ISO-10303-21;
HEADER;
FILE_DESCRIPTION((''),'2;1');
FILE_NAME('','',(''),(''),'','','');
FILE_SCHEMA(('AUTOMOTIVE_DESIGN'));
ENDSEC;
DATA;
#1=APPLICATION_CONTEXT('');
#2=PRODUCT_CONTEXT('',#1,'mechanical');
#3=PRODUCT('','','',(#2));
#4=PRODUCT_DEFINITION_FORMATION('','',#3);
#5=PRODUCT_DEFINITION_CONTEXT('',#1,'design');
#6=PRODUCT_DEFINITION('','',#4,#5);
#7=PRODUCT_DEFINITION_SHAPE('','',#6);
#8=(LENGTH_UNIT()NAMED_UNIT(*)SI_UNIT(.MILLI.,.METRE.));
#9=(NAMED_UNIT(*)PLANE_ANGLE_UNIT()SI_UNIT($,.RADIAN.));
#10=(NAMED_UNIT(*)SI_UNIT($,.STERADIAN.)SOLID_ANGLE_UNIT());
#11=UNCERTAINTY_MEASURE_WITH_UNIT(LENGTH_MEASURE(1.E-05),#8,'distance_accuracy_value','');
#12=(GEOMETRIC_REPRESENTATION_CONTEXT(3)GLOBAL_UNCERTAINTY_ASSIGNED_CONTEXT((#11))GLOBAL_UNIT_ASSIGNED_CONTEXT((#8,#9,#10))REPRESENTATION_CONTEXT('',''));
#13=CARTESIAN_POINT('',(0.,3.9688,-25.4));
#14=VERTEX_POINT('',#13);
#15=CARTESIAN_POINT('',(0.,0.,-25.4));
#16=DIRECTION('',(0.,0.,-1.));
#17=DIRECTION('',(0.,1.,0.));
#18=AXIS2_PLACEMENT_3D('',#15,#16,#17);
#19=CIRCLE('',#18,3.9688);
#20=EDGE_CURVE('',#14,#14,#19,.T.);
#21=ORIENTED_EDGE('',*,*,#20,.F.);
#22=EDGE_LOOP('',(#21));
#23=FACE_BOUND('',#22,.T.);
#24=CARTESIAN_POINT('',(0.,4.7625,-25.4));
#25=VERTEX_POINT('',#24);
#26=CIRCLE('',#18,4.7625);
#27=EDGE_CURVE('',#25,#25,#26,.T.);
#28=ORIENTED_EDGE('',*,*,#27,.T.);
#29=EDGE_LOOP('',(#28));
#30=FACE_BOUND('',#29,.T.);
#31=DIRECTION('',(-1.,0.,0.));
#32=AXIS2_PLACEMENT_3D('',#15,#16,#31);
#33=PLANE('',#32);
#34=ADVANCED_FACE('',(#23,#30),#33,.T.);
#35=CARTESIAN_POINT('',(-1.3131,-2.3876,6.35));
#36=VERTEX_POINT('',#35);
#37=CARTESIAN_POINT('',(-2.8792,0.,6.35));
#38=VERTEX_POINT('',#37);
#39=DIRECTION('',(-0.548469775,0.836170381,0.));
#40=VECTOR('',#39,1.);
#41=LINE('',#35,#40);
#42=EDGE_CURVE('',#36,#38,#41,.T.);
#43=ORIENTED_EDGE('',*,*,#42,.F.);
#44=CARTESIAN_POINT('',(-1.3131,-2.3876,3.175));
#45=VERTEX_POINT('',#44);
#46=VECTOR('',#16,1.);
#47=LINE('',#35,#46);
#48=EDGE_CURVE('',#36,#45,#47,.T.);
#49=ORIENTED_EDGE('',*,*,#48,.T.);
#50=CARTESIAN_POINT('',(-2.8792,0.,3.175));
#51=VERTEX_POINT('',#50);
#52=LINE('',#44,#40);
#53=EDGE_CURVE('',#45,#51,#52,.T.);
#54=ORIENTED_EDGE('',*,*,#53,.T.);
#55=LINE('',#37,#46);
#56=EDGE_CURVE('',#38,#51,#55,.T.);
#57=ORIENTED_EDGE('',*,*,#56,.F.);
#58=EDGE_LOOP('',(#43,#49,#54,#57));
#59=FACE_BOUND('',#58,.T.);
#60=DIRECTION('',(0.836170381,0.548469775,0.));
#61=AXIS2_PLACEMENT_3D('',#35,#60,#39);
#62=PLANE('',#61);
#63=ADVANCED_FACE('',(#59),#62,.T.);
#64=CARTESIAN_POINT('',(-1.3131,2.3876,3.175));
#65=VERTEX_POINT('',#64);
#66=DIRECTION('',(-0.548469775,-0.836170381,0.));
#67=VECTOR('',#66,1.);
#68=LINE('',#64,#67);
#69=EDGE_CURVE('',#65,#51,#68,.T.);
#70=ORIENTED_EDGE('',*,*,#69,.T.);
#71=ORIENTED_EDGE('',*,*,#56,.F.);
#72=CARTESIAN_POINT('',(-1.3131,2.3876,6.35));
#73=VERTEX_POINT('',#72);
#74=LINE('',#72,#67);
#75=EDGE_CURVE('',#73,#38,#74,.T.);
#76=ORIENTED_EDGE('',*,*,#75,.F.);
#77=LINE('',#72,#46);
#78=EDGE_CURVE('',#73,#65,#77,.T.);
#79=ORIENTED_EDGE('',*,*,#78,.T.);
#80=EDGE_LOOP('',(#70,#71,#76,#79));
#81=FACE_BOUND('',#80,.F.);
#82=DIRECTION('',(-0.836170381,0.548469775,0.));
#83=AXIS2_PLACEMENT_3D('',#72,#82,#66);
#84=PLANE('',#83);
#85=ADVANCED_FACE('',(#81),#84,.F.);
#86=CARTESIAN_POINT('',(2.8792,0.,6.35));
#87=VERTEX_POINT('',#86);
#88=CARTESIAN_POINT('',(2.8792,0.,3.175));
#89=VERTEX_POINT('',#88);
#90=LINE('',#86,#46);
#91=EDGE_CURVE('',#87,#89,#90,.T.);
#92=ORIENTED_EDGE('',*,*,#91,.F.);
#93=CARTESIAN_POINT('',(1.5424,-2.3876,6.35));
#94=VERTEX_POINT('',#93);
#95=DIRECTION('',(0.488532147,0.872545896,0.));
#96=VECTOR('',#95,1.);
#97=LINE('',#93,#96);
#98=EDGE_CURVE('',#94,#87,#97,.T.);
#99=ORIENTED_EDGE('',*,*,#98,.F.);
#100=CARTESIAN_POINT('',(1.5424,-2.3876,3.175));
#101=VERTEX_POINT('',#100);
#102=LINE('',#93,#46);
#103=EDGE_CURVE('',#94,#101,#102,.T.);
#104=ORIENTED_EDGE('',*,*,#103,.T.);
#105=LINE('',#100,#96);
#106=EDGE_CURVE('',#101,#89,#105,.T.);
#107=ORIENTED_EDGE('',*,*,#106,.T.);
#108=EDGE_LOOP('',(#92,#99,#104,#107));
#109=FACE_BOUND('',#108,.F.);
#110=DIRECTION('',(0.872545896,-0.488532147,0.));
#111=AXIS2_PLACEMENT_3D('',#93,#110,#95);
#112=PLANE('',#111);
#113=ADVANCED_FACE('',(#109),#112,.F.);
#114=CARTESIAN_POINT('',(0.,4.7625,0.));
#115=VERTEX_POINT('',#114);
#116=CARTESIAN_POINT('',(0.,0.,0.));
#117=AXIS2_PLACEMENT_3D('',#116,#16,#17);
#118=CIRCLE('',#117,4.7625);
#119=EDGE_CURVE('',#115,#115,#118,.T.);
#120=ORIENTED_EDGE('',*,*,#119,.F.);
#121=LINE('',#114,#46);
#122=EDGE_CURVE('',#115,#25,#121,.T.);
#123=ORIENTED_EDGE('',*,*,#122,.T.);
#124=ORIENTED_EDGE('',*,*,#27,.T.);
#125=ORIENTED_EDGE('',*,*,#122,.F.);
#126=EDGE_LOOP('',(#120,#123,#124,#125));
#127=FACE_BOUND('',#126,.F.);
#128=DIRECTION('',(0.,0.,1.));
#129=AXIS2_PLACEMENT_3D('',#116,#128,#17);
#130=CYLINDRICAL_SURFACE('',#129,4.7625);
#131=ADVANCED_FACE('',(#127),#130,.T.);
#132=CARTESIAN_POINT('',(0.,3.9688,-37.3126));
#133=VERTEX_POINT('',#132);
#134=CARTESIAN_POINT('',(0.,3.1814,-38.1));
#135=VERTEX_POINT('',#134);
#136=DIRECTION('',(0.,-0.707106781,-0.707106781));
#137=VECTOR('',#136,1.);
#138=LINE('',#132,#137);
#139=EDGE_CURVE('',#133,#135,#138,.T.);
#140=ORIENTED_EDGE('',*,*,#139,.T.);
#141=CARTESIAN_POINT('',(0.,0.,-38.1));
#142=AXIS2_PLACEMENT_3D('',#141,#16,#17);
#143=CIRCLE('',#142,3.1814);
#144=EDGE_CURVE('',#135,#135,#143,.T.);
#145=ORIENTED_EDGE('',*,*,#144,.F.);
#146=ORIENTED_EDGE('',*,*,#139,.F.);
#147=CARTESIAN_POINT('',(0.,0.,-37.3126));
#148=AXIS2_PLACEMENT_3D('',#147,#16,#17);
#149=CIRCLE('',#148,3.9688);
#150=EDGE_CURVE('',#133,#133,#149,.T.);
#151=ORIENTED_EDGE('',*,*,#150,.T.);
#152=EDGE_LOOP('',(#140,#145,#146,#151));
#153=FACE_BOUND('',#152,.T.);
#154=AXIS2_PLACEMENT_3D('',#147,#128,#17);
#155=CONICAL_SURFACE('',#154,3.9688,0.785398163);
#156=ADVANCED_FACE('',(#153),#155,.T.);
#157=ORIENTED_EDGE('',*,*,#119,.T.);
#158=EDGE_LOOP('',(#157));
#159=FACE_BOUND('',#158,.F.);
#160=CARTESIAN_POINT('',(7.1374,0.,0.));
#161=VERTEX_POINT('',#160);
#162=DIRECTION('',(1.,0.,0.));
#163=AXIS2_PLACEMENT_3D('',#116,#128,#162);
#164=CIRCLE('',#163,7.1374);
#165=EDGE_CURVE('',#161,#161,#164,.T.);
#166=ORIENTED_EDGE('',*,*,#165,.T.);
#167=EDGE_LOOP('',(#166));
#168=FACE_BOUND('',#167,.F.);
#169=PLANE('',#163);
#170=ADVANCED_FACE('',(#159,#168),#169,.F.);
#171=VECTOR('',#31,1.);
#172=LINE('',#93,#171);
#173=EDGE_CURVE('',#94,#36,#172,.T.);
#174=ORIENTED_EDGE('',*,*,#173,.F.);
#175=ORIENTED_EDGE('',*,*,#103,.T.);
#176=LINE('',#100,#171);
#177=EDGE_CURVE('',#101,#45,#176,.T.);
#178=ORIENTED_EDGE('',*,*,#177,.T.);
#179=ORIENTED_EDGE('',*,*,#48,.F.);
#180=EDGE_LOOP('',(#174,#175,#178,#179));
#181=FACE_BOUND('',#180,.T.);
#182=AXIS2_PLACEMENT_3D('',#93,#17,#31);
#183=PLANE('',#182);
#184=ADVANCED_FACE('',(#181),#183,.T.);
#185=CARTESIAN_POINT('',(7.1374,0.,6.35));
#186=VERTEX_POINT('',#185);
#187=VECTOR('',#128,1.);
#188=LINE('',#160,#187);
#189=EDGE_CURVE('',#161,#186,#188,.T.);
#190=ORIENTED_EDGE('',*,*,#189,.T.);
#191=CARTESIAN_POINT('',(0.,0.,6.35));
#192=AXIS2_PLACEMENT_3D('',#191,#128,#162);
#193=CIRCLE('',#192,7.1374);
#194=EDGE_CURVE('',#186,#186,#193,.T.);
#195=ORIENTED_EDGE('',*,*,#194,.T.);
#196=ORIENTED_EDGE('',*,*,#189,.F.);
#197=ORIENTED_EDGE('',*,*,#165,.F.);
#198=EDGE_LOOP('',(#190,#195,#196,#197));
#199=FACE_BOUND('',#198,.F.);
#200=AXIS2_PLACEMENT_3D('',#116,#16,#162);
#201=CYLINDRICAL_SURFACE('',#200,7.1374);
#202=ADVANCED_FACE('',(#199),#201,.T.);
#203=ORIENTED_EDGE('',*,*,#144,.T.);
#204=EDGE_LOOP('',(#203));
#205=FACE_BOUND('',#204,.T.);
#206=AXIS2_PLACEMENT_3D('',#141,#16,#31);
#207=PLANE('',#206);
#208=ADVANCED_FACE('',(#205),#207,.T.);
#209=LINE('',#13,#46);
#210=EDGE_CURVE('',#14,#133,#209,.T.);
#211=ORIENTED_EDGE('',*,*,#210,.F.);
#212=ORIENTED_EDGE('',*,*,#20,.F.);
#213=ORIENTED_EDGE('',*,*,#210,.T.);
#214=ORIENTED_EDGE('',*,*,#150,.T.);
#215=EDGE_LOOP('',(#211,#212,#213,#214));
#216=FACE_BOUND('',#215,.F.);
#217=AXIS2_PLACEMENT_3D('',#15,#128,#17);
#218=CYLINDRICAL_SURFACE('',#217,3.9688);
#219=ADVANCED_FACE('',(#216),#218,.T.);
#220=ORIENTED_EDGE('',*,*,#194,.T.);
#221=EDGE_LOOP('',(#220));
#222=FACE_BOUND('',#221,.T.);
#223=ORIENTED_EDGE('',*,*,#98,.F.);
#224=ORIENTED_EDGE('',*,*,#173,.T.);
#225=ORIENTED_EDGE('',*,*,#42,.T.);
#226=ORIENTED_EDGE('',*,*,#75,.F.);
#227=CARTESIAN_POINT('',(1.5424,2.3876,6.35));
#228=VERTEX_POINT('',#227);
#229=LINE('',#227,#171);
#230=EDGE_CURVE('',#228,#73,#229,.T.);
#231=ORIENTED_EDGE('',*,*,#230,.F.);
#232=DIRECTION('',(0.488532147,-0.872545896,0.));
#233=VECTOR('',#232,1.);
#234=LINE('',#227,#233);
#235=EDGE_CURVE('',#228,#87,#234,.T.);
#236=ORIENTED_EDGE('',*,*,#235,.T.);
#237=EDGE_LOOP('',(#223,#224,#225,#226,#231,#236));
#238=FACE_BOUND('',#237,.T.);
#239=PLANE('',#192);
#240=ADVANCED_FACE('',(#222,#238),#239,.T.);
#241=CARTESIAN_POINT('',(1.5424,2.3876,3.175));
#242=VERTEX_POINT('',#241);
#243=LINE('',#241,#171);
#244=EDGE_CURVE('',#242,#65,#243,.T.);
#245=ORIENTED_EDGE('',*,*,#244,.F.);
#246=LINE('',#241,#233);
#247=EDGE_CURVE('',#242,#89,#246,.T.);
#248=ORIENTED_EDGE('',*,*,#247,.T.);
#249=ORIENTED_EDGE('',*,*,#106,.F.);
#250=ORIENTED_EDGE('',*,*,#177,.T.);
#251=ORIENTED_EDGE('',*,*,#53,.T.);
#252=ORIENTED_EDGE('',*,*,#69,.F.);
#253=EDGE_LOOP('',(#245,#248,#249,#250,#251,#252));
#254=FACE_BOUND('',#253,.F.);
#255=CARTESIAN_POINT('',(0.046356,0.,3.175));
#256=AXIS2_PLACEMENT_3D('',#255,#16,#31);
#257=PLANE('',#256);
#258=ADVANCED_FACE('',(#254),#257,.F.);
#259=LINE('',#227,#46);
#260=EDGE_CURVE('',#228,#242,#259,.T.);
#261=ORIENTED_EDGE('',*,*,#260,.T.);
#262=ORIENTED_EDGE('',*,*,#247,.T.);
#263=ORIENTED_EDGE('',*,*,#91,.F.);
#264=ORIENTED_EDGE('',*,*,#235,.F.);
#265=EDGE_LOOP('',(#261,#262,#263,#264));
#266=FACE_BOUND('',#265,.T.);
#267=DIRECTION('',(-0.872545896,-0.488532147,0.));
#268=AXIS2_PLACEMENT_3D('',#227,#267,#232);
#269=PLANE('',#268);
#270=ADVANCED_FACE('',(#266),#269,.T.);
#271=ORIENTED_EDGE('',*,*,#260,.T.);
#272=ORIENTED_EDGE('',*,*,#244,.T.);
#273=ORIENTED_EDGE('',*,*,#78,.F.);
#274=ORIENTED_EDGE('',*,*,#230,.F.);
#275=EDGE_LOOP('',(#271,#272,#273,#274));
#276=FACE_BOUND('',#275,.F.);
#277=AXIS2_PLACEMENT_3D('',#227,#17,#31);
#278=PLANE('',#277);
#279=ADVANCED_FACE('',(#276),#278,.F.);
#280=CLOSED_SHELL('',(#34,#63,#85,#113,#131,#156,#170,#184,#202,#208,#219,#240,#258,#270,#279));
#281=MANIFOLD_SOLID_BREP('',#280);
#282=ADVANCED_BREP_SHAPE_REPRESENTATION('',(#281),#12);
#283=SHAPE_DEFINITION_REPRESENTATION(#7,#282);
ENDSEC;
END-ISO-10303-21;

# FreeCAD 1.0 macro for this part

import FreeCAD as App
import Part
import Sketcher
from FreeCAD import Vector
Q = App.Units.Quantity


def edges_at(feature, points):
    """Names of the edges that pass closest to the given points."""
    edges = feature.Shape.Edges
    near = lambda p: min(range(len(edges)), key=lambda i: edges[i].distToShape(Part.Vertex(*p))[0])
    return sorted({f"Edge{near(p) + 1}" for p in points})

doc = App.newDocument("Part")
body = doc.addObject("PartDesign::Body", "Body")

sketch1 = doc.addObject("Sketcher::SketchObject", "Sketch")
body.addObject(sketch1)
sketch1.AttachmentSupport = (doc.XY_Plane, [""])
sketch1.MapMode = "FlatFace"
sketch1.addGeometry(Part.Circle(Vector(0, 0, 0), Vector(0, 0, 1), 7.1374), False)
sketch1.addConstraint([
    Sketcher.Constraint("Coincident", 0, 3, -1, 1),
    Sketcher.Constraint("Diameter", 0, Q("0.562 in")),
])
pad1 = doc.addObject("PartDesign::Pad", "Pad")
body.addObject(pad1)
pad1.Profile = sketch1
pad1.Length = Q("0.25 in")

sketch2 = doc.addObject("Sketcher::SketchObject", "Sketch001")
body.addObject(sketch2)
sketch2.AttachmentSupport = (doc.XY_Plane, [""])
sketch2.MapMode = "FlatFace"
sketch2.addGeometry(Part.Circle(Vector(0, 0, 0), Vector(0, 0, 1), 4.7625), False)
sketch2.addConstraint([
    Sketcher.Constraint("Coincident", 0, 3, -1, 1),
    Sketcher.Constraint("Diameter", 0, Q("0.375 in")),
])
pad2 = doc.addObject("PartDesign::Pad", "Pad001")
body.addObject(pad2)
pad2.Profile = sketch2
pad2.Length = Q("1 in")
pad2.Reversed = True

sketch3 = doc.addObject("Sketcher::SketchObject", "Sketch002")
body.addObject(sketch3)
sketch3.AttachmentSupport = (doc.XY_Plane, [""])
sketch3.MapMode = "FlatFace"
sketch3.AttachmentOffset = App.Placement(Vector(0, 0, -1 * 25.4), App.Rotation())
sketch3.addGeometry(Part.Circle(Vector(0, 0, 0), Vector(0, 0, 1), 3.9688), False)
sketch3.addConstraint([
    Sketcher.Constraint("Coincident", 0, 3, -1, 1),
    Sketcher.Constraint("Diameter", 0, Q("0.3125 in")),
])
pad3 = doc.addObject("PartDesign::Pad", "Pad002")
body.addObject(pad3)
pad3.Profile = sketch3
pad3.Length = Q("0.5 in")
pad3.Reversed = True

sketch4 = doc.addObject("Sketcher::SketchObject", "Sketch003")
body.addObject(sketch4)
sketch4.AttachmentSupport = (doc.XY_Plane, [""])
sketch4.MapMode = "FlatFace"
sketch4.AttachmentOffset = App.Placement(Vector(0, 0, 0.25 * 25.4), App.Rotation())
sketch4.addGeometry([
    Part.LineSegment(Vector(-2.8792, 0, 0), Vector(-1.3131, -2.3876, 0)),
    Part.LineSegment(Vector(-1.3131, -2.3876, 0), Vector(1.5424, -2.3876, 0)),
    Part.LineSegment(Vector(1.5424, -2.3876, 0), Vector(2.8792, 0, 0)),
    Part.LineSegment(Vector(2.8792, 0, 0), Vector(1.5424, 2.3876, 0)),
    Part.LineSegment(Vector(1.5424, 2.3876, 0), Vector(-1.3131, 2.3876, 0)),
    Part.LineSegment(Vector(-1.3131, 2.3876, 0), Vector(-2.8792, 0, 0)),
], False)
sketch4.addConstraint([
    Sketcher.Constraint("Coincident", 0, 2, 1, 1),
    Sketcher.Constraint("Coincident", 1, 2, 2, 1),
    Sketcher.Constraint("Coincident", 2, 2, 3, 1),
    Sketcher.Constraint("Coincident", 3, 2, 4, 1),
    Sketcher.Constraint("Coincident", 4, 2, 5, 1),
    Sketcher.Constraint("Coincident", 5, 2, 0, 1),
    Sketcher.Constraint("Horizontal", 1),
    Sketcher.Constraint("Horizontal", 4),
    Sketcher.Constraint("Symmetric", 2, 2, 5, 2, -1, 1),
    Sketcher.Constraint("Symmetric", 1, 2, 3, 2, -1),
    Sketcher.Constraint("PointOnObject", 2, 2, -1),
    Sketcher.Constraint("Vertical", 0, 2, 4, 2),
    Sketcher.Constraint("DistanceY", 0, 2, -1, 1, Q("0.094 in")),
    Sketcher.Constraint("DistanceX", 1, 1, 1, 2, 2.8555),
    Sketcher.Constraint("DistanceX", 0, 2, -1, 1, Q("0.0517 in")),
    Sketcher.Constraint("DistanceX", 5, 2, 2, 2, Q("0.2267 in")),
])
pocket1 = doc.addObject("PartDesign::Pocket", "Pocket")
body.addObject(pocket1)
pocket1.Profile = sketch4
pocket1.Length = Q("0.125 in")
doc.recompute()

chamfer = doc.addObject("PartDesign::Chamfer", "Chamfer")
body.addObject(chamfer)
chamfer.Base = (pocket1, edges_at(pocket1, [(0, -3.969, -38.1)]))
chamfer.Size = Q("0.031 in")

doc.recompute()
